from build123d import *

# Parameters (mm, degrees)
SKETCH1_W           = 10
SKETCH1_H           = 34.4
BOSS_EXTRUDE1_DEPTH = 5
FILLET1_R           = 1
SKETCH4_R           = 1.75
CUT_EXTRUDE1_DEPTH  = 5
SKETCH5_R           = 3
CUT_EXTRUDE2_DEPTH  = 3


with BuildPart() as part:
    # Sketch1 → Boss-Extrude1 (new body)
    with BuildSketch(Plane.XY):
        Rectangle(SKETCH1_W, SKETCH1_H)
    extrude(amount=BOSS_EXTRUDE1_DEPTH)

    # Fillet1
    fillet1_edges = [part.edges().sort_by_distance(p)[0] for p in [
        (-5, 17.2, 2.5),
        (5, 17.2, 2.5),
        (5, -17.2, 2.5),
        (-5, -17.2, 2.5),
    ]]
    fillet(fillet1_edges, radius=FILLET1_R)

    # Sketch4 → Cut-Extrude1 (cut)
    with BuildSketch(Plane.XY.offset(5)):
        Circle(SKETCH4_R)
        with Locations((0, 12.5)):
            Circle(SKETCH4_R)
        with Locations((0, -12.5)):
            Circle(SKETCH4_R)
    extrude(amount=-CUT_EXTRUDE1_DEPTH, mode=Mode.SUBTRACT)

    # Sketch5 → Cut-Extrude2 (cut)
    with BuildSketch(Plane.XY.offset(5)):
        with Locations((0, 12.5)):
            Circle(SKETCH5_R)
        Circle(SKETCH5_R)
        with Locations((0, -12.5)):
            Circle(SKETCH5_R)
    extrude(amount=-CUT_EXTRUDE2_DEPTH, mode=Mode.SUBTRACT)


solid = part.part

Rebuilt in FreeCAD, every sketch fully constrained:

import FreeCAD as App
import Part
import Sketcher


def edges_at(feature, points):
    """Names of the edges that pass closest to the given points."""
    edges = feature.Shape.Edges
    near = lambda p: min(range(len(edges)), key=lambda i: edges[i].distToShape(Part.Vertex(*p))[0])
    return sorted({f"Edge{near(p) + 1}" for p in points})

doc = App.newDocument("Part")
params = doc.addObject("Spreadsheet::Sheet", "Params")
for row, (alias, value) in enumerate([
    ("sketch1_width", "10 mm"),
    ("sketch1_height", "34.4 mm"),
    ("pad1_length", "5 mm"),
    ("fillet_radius", "1 mm"),
    ("sketch2_diameter", "3.5 mm"),
    ("pocket1_length", "5 mm"),
    ("sketch3_diameter", "6 mm"),
    ("pocket2_length", "3 mm"),
], start=1):
    params.set(f"A{row}", alias)
    params.set(f"B{row}", "=" + value)
    params.setAlias(f"B{row}", alias)

body = doc.addObject("PartDesign::Body", "Body")

# Sketch on XY plane
sketch1 = doc.addObject("Sketcher::SketchObject", "Sketch")
body.addObject(sketch1)
sketch1.AttachmentSupport = (doc.XY_Plane, [""])
sketch1.MapMode = "FlatFace"
sketch1.addGeometry(Part.LineSegment(App.Vector(-5, 17, 0), App.Vector(-5, -17, 0)), False)
sketch1.addGeometry(Part.LineSegment(App.Vector(-5, -17, 0), App.Vector(5, -17, 0)), False)
sketch1.addGeometry(Part.LineSegment(App.Vector(5, -17, 0), App.Vector(5, 17, 0)), False)
sketch1.addGeometry(Part.LineSegment(App.Vector(5, 17, 0), App.Vector(-5, 17, 0)), False)
sketch1.addConstraint(Sketcher.Constraint("Coincident", 0, 2, 1, 1))
sketch1.addConstraint(Sketcher.Constraint("Coincident", 1, 2, 2, 1))
sketch1.addConstraint(Sketcher.Constraint("Coincident", 2, 2, 3, 1))
sketch1.addConstraint(Sketcher.Constraint("Coincident", 3, 2, 0, 1))
sketch1.addConstraint(Sketcher.Constraint("Vertical", 0))
sketch1.addConstraint(Sketcher.Constraint("Horizontal", 1))
sketch1.addConstraint(Sketcher.Constraint("Vertical", 2))
sketch1.addConstraint(Sketcher.Constraint("Horizontal", 3))
sketch1.addConstraint(Sketcher.Constraint("Symmetric", 0, 2, 2, 2, -1, 1))
sketch1.addConstraint(Sketcher.Constraint("DistanceX", 1, 1, 1, 2, 10.0))
sketch1.addConstraint(Sketcher.Constraint("DistanceY", 0, 2, 0, 1, 34.4))
sketch1.setExpression("Constraints[9]", "Params.sketch1_width")
sketch1.setExpression("Constraints[10]", "Params.sketch1_height")
pad1 = doc.addObject("PartDesign::Pad", "Pad")
body.addObject(pad1)
pad1.Profile = sketch1
pad1.setExpression("Length", "Params.pad1_length")
doc.recompute()

fillet = doc.addObject("PartDesign::Fillet", "Fillet")
body.addObject(fillet)
fillet.Base = (pad1, edges_at(pad1, [
    (-5, 17.2, 2.5),
    (5, 17.2, 2.5),
    (5, -17.2, 2.5),
    (-5, -17.2, 2.5),
]))
fillet.setExpression("Radius", "Params.fillet_radius")

# Sketch on XY plane
sketch2 = doc.addObject("Sketcher::SketchObject", "Sketch001")
body.addObject(sketch2)
sketch2.AttachmentSupport = (doc.XY_Plane, [""])
sketch2.MapMode = "FlatFace"
sketch2.AttachmentOffset = App.Placement(App.Vector(0, 0, 5), App.Rotation())
sketch2.addGeometry(Part.Circle(App.Vector(0, 0, 0), App.Vector(0, 0, 1), 1.8), False)
sketch2.addGeometry(Part.Circle(App.Vector(0, 12.5, 0), App.Vector(0, 0, 1), 1.8), False)
sketch2.addGeometry(Part.Circle(App.Vector(0, -12.5, 0), App.Vector(0, 0, 1), 1.8), False)
sketch2.addConstraint(Sketcher.Constraint("Coincident", 0, 3, -1, 1))
sketch2.addConstraint(Sketcher.Constraint("Equal", 0, 1))
sketch2.addConstraint(Sketcher.Constraint("Equal", 1, 2))
sketch2.addConstraint(Sketcher.Constraint("Symmetric", 1, 3, 2, 3, -1, 1))
sketch2.addConstraint(Sketcher.Constraint("PointOnObject", 1, 3, -2))
sketch2.addConstraint(Sketcher.Constraint("Diameter", 0, 3.5))
sketch2.addConstraint(Sketcher.Constraint("DistanceY", 2, 3, 1, 3, 25.0))
sketch2.setExpression("Constraints[5]", "Params.sketch2_diameter")
pocket1 = doc.addObject("PartDesign::Pocket", "Pocket")
body.addObject(pocket1)
pocket1.Profile = sketch2
pocket1.setExpression("Length", "Params.pocket1_length")

# Sketch on XY plane
sketch3 = doc.addObject("Sketcher::SketchObject", "Sketch002")
body.addObject(sketch3)
sketch3.AttachmentSupport = (doc.XY_Plane, [""])
sketch3.MapMode = "FlatFace"
sketch3.AttachmentOffset = App.Placement(App.Vector(0, 0, 5), App.Rotation())
sketch3.addGeometry(Part.Circle(App.Vector(0, 12.5, 0), App.Vector(0, 0, 1), 3), False)
sketch3.addGeometry(Part.Circle(App.Vector(0, 0, 0), App.Vector(0, 0, 1), 3), False)
sketch3.addGeometry(Part.Circle(App.Vector(0, -12.5, 0), App.Vector(0, 0, 1), 3), False)
sketch3.addConstraint(Sketcher.Constraint("Coincident", 1, 3, -1, 1))
sketch3.addConstraint(Sketcher.Constraint("Equal", 0, 1))
sketch3.addConstraint(Sketcher.Constraint("Equal", 1, 2))
sketch3.addConstraint(Sketcher.Constraint("Symmetric", 0, 3, 2, 3, -1, 1))
sketch3.addConstraint(Sketcher.Constraint("PointOnObject", 0, 3, -2))
sketch3.addConstraint(Sketcher.Constraint("Diameter", 0, 6.0))
sketch3.addConstraint(Sketcher.Constraint("DistanceY", 2, 3, 0, 3, 25.0))
sketch3.setExpression("Constraints[5]", "Params.sketch3_diameter")
pocket2 = doc.addObject("PartDesign::Pocket", "Pocket001")
body.addObject(pocket2)
pocket2.Profile = sketch3
pocket2.setExpression("Length", "Params.pocket2_length")

doc.recompute()
